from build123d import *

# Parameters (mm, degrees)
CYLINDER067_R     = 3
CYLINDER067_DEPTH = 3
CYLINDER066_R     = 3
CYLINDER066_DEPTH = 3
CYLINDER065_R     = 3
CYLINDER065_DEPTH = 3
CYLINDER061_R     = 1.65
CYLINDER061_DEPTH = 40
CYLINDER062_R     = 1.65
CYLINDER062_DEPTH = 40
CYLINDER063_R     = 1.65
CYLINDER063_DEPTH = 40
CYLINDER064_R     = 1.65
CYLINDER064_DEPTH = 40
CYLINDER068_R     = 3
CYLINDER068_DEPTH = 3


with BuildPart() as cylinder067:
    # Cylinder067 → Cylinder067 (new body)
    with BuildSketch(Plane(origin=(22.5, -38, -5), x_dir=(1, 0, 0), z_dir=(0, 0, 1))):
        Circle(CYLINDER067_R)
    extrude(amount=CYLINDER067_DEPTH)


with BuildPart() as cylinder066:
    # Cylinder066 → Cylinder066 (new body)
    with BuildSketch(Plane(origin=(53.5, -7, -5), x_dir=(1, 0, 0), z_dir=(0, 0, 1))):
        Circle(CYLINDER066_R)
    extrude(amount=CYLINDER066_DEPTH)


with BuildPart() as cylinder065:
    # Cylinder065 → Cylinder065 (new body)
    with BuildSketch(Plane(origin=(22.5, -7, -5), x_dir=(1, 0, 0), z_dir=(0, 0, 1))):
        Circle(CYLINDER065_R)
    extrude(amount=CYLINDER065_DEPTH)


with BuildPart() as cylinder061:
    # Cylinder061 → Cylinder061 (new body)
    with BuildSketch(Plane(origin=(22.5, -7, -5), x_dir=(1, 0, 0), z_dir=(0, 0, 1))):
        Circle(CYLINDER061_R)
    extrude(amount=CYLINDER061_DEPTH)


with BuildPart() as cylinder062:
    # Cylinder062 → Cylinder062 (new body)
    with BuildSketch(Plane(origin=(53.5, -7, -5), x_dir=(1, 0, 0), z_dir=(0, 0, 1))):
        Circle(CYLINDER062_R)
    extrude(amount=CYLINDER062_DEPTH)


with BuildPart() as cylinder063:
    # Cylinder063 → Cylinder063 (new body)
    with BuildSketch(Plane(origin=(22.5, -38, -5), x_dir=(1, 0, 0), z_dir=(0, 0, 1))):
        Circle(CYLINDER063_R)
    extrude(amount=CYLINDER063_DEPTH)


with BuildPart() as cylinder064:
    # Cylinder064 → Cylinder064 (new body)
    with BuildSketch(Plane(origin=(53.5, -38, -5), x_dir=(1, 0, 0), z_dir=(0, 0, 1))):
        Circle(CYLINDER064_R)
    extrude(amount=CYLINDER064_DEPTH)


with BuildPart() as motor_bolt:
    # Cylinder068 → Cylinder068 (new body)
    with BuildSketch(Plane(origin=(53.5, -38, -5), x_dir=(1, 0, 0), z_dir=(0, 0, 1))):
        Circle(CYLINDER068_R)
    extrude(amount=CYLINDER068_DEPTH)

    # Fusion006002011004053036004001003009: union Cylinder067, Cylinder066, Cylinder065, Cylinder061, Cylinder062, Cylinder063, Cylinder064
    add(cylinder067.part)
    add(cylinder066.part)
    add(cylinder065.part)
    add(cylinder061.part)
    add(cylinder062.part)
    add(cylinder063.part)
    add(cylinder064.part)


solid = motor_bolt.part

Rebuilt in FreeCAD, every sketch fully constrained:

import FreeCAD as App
import Part
import Sketcher

V = App.Vector
Q = App.Units.Quantity

doc = App.newDocument("Part")
params = doc.addObject("Spreadsheet::Sheet", "Params")
for row, (alias, value) in enumerate([
    ("sketch1_diameter", "6 mm"),
    ("pad1_length", "3 mm"),
    ("sketch2_diameter", "6 mm"),
    ("pad2_length", "3 mm"),
    ("sketch3_diameter", "6 mm"),
    ("pad3_length", "3 mm"),
    ("sketch4_diameter", "3.3 mm"),
    ("pad4_length", "40 mm"),
    ("sketch5_diameter", "3.3 mm"),
    ("pad5_length", "40 mm"),
    ("sketch6_diameter", "3.3 mm"),
    ("pad6_length", "40 mm"),
    ("sketch7_diameter", "3.3 mm"),
    ("pad7_length", "40 mm"),
    ("sketch8_diameter", "6 mm"),
    ("pad8_length", "3 mm"),
], start=1):
    params.set(f"A{row}", alias)
    params.set(f"B{row}", "=" + value)
    params.setAlias(f"B{row}", alias)

body = doc.addObject("PartDesign::Body", "Body")

sketch1 = doc.addObject("Sketcher::SketchObject", "Sketch")
body.addObject(sketch1)
sketch1.AttachmentSupport = (doc.XY_Plane, [""])
sketch1.MapMode = "FlatFace"
sketch1.AttachmentOffset = App.Placement(V(0, 0, -5), App.Rotation())
sketch1.addGeometry(Part.Circle(V(22.5, -38, 0), V(0, 0, 1), 3), False)
sketch1.addConstraint([
    Sketcher.Constraint("Diameter", 0, Q("6 mm")),
    Sketcher.Constraint("DistanceY", 0, 3, -1, 1, Q("38 mm")),
    Sketcher.Constraint("DistanceX", -1, 1, 0, 3, Q("22.5 mm")),
])
sketch1.setExpression("Constraints[0]", "Params.sketch1_diameter")
pad1 = doc.addObject("PartDesign::Pad", "Pad")
body.addObject(pad1)
pad1.Profile = sketch1
pad1.setExpression("Length", "Params.pad1_length")
body2 = doc.addObject("PartDesign::Body", "Body001")

sketch2 = doc.addObject("Sketcher::SketchObject", "Sketch001")
body2.addObject(sketch2)
sketch2.AttachmentSupport = (doc.getObject("XY_Plane001"), [""])
sketch2.MapMode = "FlatFace"
sketch2.AttachmentOffset = App.Placement(V(0, 0, -5), App.Rotation())
sketch2.addGeometry(Part.Circle(V(53.5, -7, 0), V(0, 0, 1), 3), False)
sketch2.addConstraint([
    Sketcher.Constraint("Diameter", 0, Q("6 mm")),
    Sketcher.Constraint("DistanceY", 0, 3, -1, 1, Q("7 mm")),
    Sketcher.Constraint("DistanceX", -1, 1, 0, 3, Q("53.5 mm")),
])
sketch2.setExpression("Constraints[0]", "Params.sketch2_diameter")
pad2 = doc.addObject("PartDesign::Pad", "Pad001")
body2.addObject(pad2)
pad2.Profile = sketch2
pad2.setExpression("Length", "Params.pad2_length")
body3 = doc.addObject("PartDesign::Body", "Body002")

sketch3 = doc.addObject("Sketcher::SketchObject", "Sketch002")
body3.addObject(sketch3)
sketch3.AttachmentSupport = (doc.getObject("XY_Plane002"), [""])
sketch3.MapMode = "FlatFace"
sketch3.AttachmentOffset = App.Placement(V(0, 0, -5), App.Rotation())
sketch3.addGeometry(Part.Circle(V(22.5, -7, 0), V(0, 0, 1), 3), False)
sketch3.addConstraint([
    Sketcher.Constraint("Diameter", 0, Q("6 mm")),
    Sketcher.Constraint("DistanceY", 0, 3, -1, 1, Q("7 mm")),
    Sketcher.Constraint("DistanceX", -1, 1, 0, 3, Q("22.5 mm")),
])
sketch3.setExpression("Constraints[0]", "Params.sketch3_diameter")
pad3 = doc.addObject("PartDesign::Pad", "Pad002")
body3.addObject(pad3)
pad3.Profile = sketch3
pad3.setExpression("Length", "Params.pad3_length")
body4 = doc.addObject("PartDesign::Body", "Body003")

sketch4 = doc.addObject("Sketcher::SketchObject", "Sketch003")
body4.addObject(sketch4)
sketch4.AttachmentSupport = (doc.getObject("XY_Plane003"), [""])
sketch4.MapMode = "FlatFace"
sketch4.AttachmentOffset = App.Placement(V(0, 0, -5), App.Rotation())
sketch4.addGeometry(Part.Circle(V(22.5, -7, 0), V(0, 0, 1), 1.6), False)
sketch4.addConstraint([
    Sketcher.Constraint("Diameter", 0, Q("3.3 mm")),
    Sketcher.Constraint("DistanceY", 0, 3, -1, 1, Q("7 mm")),
    Sketcher.Constraint("DistanceX", -1, 1, 0, 3, Q("22.5 mm")),
])
sketch4.setExpression("Constraints[0]", "Params.sketch4_diameter")
pad4 = doc.addObject("PartDesign::Pad", "Pad003")
body4.addObject(pad4)
pad4.Profile = sketch4
pad4.setExpression("Length", "Params.pad4_length")
body5 = doc.addObject("PartDesign::Body", "Body004")

sketch5 = doc.addObject("Sketcher::SketchObject", "Sketch004")
body5.addObject(sketch5)
sketch5.AttachmentSupport = (doc.getObject("XY_Plane004"), [""])
sketch5.MapMode = "FlatFace"
sketch5.AttachmentOffset = App.Placement(V(0, 0, -5), App.Rotation())
sketch5.addGeometry(Part.Circle(V(53.5, -7, 0), V(0, 0, 1), 1.6), False)
sketch5.addConstraint([
    Sketcher.Constraint("Diameter", 0, Q("3.3 mm")),
    Sketcher.Constraint("DistanceY", 0, 3, -1, 1, Q("7 mm")),
    Sketcher.Constraint("DistanceX", -1, 1, 0, 3, Q("53.5 mm")),
])
sketch5.setExpression("Constraints[0]", "Params.sketch5_diameter")
pad5 = doc.addObject("PartDesign::Pad", "Pad004")
body5.addObject(pad5)
pad5.Profile = sketch5
pad5.setExpression("Length", "Params.pad5_length")
body6 = doc.addObject("PartDesign::Body", "Body005")

sketch6 = doc.addObject("Sketcher::SketchObject", "Sketch005")
body6.addObject(sketch6)
sketch6.AttachmentSupport = (doc.getObject("XY_Plane005"), [""])
sketch6.MapMode = "FlatFace"
sketch6.AttachmentOffset = App.Placement(V(0, 0, -5), App.Rotation())
sketch6.addGeometry(Part.Circle(V(22.5, -38, 0), V(0, 0, 1), 1.6), False)
sketch6.addConstraint([
    Sketcher.Constraint("Diameter", 0, Q("3.3 mm")),
    Sketcher.Constraint("DistanceY", 0, 3, -1, 1, Q("38 mm")),
    Sketcher.Constraint("DistanceX", -1, 1, 0, 3, Q("22.5 mm")),
])
sketch6.setExpression("Constraints[0]", "Params.sketch6_diameter")
pad6 = doc.addObject("PartDesign::Pad", "Pad005")
body6.addObject(pad6)
pad6.Profile = sketch6
pad6.setExpression("Length", "Params.pad6_length")
body7 = doc.addObject("PartDesign::Body", "Body006")

sketch7 = doc.addObject("Sketcher::SketchObject", "Sketch006")
body7.addObject(sketch7)
sketch7.AttachmentSupport = (doc.getObject("XY_Plane006"), [""])
sketch7.MapMode = "FlatFace"
sketch7.AttachmentOffset = App.Placement(V(0, 0, -5), App.Rotation())
sketch7.addGeometry(Part.Circle(V(53.5, -38, 0), V(0, 0, 1), 1.6), False)
sketch7.addConstraint([
    Sketcher.Constraint("Diameter", 0, Q("3.3 mm")),
    Sketcher.Constraint("DistanceY", 0, 3, -1, 1, Q("38 mm")),
    Sketcher.Constraint("DistanceX", -1, 1, 0, 3, Q("53.5 mm")),
])
sketch7.setExpression("Constraints[0]", "Params.sketch7_diameter")
pad7 = doc.addObject("PartDesign::Pad", "Pad006")
body7.addObject(pad7)
pad7.Profile = sketch7
pad7.setExpression("Length", "Params.pad7_length")
body8 = doc.addObject("PartDesign::Body", "Body007")
body8.AllowCompound = True

sketch8 = doc.addObject("Sketcher::SketchObject", "Sketch007")
body8.addObject(sketch8)
sketch8.AttachmentSupport = (doc.getObject("XY_Plane007"), [""])
sketch8.MapMode = "FlatFace"
sketch8.AttachmentOffset = App.Placement(V(0, 0, -5), App.Rotation())
sketch8.addGeometry(Part.Circle(V(53.5, -38, 0), V(0, 0, 1), 3), False)
sketch8.addConstraint([
    Sketcher.Constraint("Diameter", 0, Q("6 mm")),
    Sketcher.Constraint("DistanceY", 0, 3, -1, 1, Q("38 mm")),
    Sketcher.Constraint("DistanceX", -1, 1, 0, 3, Q("53.5 mm")),
])
sketch8.setExpression("Constraints[0]", "Params.sketch8_diameter")
pad8 = doc.addObject("PartDesign::Pad", "Pad007")
body8.addObject(pad8)
pad8.Profile = sketch8
pad8.setExpression("Length", "Params.pad8_length")
doc.recompute()

boolean = doc.addObject("PartDesign::Boolean", "Boolean")
body8.addObject(boolean)
boolean.Type = "Fuse"
boolean.addObjects([body])
doc.recompute()

boolean2 = doc.addObject("PartDesign::Boolean", "Boolean001")
body8.addObject(boolean2)
boolean2.Type = "Fuse"
boolean2.addObjects([body2])
doc.recompute()

boolean3 = doc.addObject("PartDesign::Boolean", "Boolean002")
body8.addObject(boolean3)
boolean3.Type = "Fuse"
boolean3.addObjects([body3])
doc.recompute()

boolean4 = doc.addObject("PartDesign::Boolean", "Boolean003")
body8.addObject(boolean4)
boolean4.Type = "Fuse"
boolean4.addObjects([body4])
doc.recompute()

boolean5 = doc.addObject("PartDesign::Boolean", "Boolean004")
body8.addObject(boolean5)
boolean5.Type = "Fuse"
boolean5.addObjects([body5])
doc.recompute()

boolean6 = doc.addObject("PartDesign::Boolean", "Boolean005")
body8.addObject(boolean6)
boolean6.Type = "Fuse"
boolean6.addObjects([body6])
doc.recompute()

boolean7 = doc.addObject("PartDesign::Boolean", "Boolean006")
body8.addObject(boolean7)
boolean7.Type = "Fuse"
boolean7.addObjects([body7])

doc.recompute()
